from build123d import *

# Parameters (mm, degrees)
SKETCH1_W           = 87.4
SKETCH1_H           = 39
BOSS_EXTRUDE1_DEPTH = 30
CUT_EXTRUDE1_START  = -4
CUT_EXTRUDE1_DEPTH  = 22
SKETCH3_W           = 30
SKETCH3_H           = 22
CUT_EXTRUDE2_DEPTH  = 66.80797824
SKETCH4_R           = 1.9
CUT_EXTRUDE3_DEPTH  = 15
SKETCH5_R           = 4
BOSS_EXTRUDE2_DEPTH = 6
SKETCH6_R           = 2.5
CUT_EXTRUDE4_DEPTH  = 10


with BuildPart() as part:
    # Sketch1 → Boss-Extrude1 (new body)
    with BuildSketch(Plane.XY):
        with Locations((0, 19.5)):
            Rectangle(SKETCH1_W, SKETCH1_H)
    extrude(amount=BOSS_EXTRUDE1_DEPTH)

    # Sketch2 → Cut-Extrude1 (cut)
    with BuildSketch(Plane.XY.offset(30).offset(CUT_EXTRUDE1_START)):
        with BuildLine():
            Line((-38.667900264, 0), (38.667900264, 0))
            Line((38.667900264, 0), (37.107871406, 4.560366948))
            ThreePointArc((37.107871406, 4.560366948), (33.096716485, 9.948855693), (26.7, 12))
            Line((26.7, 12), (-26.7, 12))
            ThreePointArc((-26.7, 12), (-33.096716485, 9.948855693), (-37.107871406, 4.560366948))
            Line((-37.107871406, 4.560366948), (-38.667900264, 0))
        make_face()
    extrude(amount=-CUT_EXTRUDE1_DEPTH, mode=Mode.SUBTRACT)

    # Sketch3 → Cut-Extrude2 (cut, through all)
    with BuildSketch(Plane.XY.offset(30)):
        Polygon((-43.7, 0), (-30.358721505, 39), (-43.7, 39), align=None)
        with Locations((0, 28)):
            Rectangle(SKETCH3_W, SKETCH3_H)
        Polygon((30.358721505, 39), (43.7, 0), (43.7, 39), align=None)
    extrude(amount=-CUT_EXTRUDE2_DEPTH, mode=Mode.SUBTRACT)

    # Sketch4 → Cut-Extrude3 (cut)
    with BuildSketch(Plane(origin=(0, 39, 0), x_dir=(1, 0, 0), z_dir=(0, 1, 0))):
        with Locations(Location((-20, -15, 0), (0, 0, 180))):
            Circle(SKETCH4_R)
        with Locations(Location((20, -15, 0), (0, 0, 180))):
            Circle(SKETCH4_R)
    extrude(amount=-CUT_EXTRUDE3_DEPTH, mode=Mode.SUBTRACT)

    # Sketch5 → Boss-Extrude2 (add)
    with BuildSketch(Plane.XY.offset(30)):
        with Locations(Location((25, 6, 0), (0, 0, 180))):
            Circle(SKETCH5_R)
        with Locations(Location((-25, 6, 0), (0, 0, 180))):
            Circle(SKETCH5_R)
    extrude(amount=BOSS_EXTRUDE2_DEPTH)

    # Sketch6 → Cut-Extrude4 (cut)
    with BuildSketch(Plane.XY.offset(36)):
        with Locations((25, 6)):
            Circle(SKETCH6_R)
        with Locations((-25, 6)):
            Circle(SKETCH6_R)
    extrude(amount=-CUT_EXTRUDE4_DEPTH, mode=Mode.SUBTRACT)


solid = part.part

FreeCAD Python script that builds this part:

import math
import FreeCAD as App
import Part
import Sketcher
Q = App.Units.Quantity

doc = App.newDocument("Part")
body = doc.addObject("PartDesign::Body", "Body")

# Sketch on XY plane
sketch1 = body.newObject("Sketcher::SketchObject", "Sketch")
sketch1.AttachmentSupport = (doc.getObject("XY_Plane"), [""])
sketch1.MapMode = "FlatFace"
sketch1.addGeometry([
    Part.LineSegment(App.Vector(-43.7, 39, 0), App.Vector(-43.7, 0, 0)),
    Part.LineSegment(App.Vector(-43.7, 0, 0), App.Vector(43.7, 0, 0)),
    Part.LineSegment(App.Vector(43.7, 0, 0), App.Vector(43.7, 39, 0)),
    Part.LineSegment(App.Vector(43.7, 39, 0), App.Vector(-43.7, 39, 0)),
], False)
sketch1.addConstraint([
    Sketcher.Constraint("Coincident", 0, 2, 1, 1),
    Sketcher.Constraint("Coincident", 1, 2, 2, 1),
    Sketcher.Constraint("Coincident", 2, 2, 3, 1),
    Sketcher.Constraint("Coincident", 3, 2, 0, 1),
    Sketcher.Constraint("Vertical", 0),
    Sketcher.Constraint("Horizontal", 1),
    Sketcher.Constraint("Vertical", 2),
    Sketcher.Constraint("Horizontal", 3),
    Sketcher.Constraint("Symmetric", 0, 2, 1, 2, -1, 1),
    Sketcher.Constraint("DistanceY", 0, 2, 0, 1, Q("39 mm")),
    Sketcher.Constraint("DistanceX", 1, 1, 1, 2, Q("87.4 mm")),
])
pad1 = body.newObject("PartDesign::Pad", "Pad")
pad1.Profile = sketch1
pad1.Length = 30

# Sketch on XY plane
sketch2 = body.newObject("Sketcher::SketchObject", "Sketch001")
sketch2.AttachmentSupport = (doc.getObject("XY_Plane"), [""])
sketch2.MapMode = "FlatFace"
sketch2.AttachmentOffset = App.Placement(App.Vector(0, 0, 26), App.Rotation())
sketch2.addGeometry([
    Part.LineSegment(App.Vector(-38.6679, 0, 0), App.Vector(38.6679, 0, 0)),  # 0
    Part.LineSegment(App.Vector(38.6679, 0, 0), App.Vector(37.107871, 4.560367, 0)),  # 1
    Part.ArcOfCircle(Part.Circle(App.Vector(26.7, 1, 0), App.Vector(0, 0, 1), 11), math.radians(18.885), math.radians(90)),  # 2
    Part.LineSegment(App.Vector(26.7, 12, 0), App.Vector(-26.7, 12, 0)),  # 3
    Part.ArcOfCircle(Part.Circle(App.Vector(-26.7, 1, 0), App.Vector(0, 0, 1), 11), math.radians(90), math.radians(161.115)),  # 4
    Part.LineSegment(App.Vector(-37.107871, 4.560367, 0), App.Vector(-38.6679, 0, 0)),  # 5
], False)
sketch2.addConstraint([
    Sketcher.Constraint("Coincident", 0, 2, 1, 1),
    Sketcher.Constraint("Tangent", 1, 2, 2, 1),
    Sketcher.Constraint("Tangent", 2, 2, 3, 1),
    Sketcher.Constraint("Tangent", 3, 2, 4, 1),
    Sketcher.Constraint("Tangent", 4, 2, 5, 1),
    Sketcher.Constraint("Coincident", 5, 2, 0, 1),
    Sketcher.Constraint("Horizontal", 0),
    Sketcher.Constraint("Horizontal", 3),
    Sketcher.Constraint("Equal", 2, 4),
    Sketcher.Constraint("Symmetric", 0, 2, 5, 2, -1, 1),
    Sketcher.Constraint("Horizontal", 1, 2, 4, 2),
    Sketcher.Constraint("Radius", 2, Q("11 mm")),
    Sketcher.Constraint("DistanceX", 3, 2, 3, 1, Q("53.4 mm")),
    Sketcher.Constraint("DistanceY", -1, 1, 2, 3, Q("1 mm")),
    Sketcher.Constraint("DistanceX", 0, 1, 0, 2, Q("77.335801 mm")),
])
pocket1 = body.newObject("PartDesign::Pocket", "Pocket")
pocket1.Profile = sketch2
pocket1.Length = 22

# Sketch on XY plane
sketch3 = body.newObject("Sketcher::SketchObject", "Sketch002")
sketch3.AttachmentSupport = (doc.getObject("XY_Plane"), [""])
sketch3.MapMode = "FlatFace"
sketch3.AttachmentOffset = App.Placement(App.Vector(0, 0, 30), App.Rotation())
sketch3.addGeometry([
    Part.LineSegment(App.Vector(-43.7, 0, 0), App.Vector(-30.358722, 39, 0)),  # 0
    Part.LineSegment(App.Vector(-30.358722, 39, 0), App.Vector(-43.7, 39, 0)),  # 1
    Part.LineSegment(App.Vector(-43.7, 39, 0), App.Vector(-43.7, 0, 0)),  # 2
    Part.LineSegment(App.Vector(-15, 39, 0), App.Vector(-15, 17, 0)),  # 3
    Part.LineSegment(App.Vector(-15, 17, 0), App.Vector(15, 17, 0)),  # 4
    Part.LineSegment(App.Vector(15, 17, 0), App.Vector(15, 39, 0)),  # 5
    Part.LineSegment(App.Vector(15, 39, 0), App.Vector(-15, 39, 0)),  # 6
    Part.LineSegment(App.Vector(30.358722, 39, 0), App.Vector(43.7, 0, 0)),  # 7
    Part.LineSegment(App.Vector(43.7, 0, 0), App.Vector(43.7, 39, 0)),  # 8
    Part.LineSegment(App.Vector(43.7, 39, 0), App.Vector(30.358722, 39, 0)),  # 9
], False)
sketch3.addConstraint([
    Sketcher.Constraint("Coincident", 0, 2, 1, 1),
    Sketcher.Constraint("Coincident", 1, 2, 2, 1),
    Sketcher.Constraint("Coincident", 2, 2, 0, 1),
    Sketcher.Constraint("Coincident", 3, 2, 4, 1),
    Sketcher.Constraint("Coincident", 4, 2, 5, 1),
    Sketcher.Constraint("Coincident", 5, 2, 6, 1),
    Sketcher.Constraint("Coincident", 6, 2, 3, 1),
    Sketcher.Constraint("Coincident", 7, 2, 8, 1),
    Sketcher.Constraint("Coincident", 8, 2, 9, 1),
    Sketcher.Constraint("Coincident", 9, 2, 7, 1),
    Sketcher.Constraint("Horizontal", 1),
    Sketcher.Constraint("Vertical", 2),
    Sketcher.Constraint("Vertical", 3),
    Sketcher.Constraint("Horizontal", 4),
    Sketcher.Constraint("Vertical", 5),
    Sketcher.Constraint("Horizontal", 6),
    Sketcher.Constraint("Vertical", 8),
    Sketcher.Constraint("Horizontal", 9),
    Sketcher.Constraint("Symmetric", 2, 2, 7, 2, -1, 1),
    Sketcher.Constraint("Symmetric", 0, 2, 9, 2, -2),
    Sketcher.Constraint("PointOnObject", 2, 2, -1),
    Sketcher.Constraint("Horizontal", 1, 2, 5, 2),
    Sketcher.Constraint("DistanceX", 4, 1, 4, 2, Q("30 mm")),
    Sketcher.Constraint("DistanceY", 2, 2, 2, 1, Q("39 mm")),
    Sketcher.Constraint("DistanceY", 3, 2, 3, 1, Q("22 mm")),
    Sketcher.Constraint("DistanceX", 3, 2, -1, 1, Q("15 mm")),
    Sketcher.Constraint("DistanceX", 1, 2, -1, 1, Q("43.7 mm")),
    Sketcher.Constraint("DistanceX", 1, 2, 1, 1, Q("13.341278 mm")),
])
pocket2 = body.newObject("PartDesign::Pocket", "Pocket001")
pocket2.Profile = sketch3
pocket2.Type = "ThroughAll"

# Sketch on XZ plane
sketch4 = body.newObject("Sketcher::SketchObject", "Sketch003")
sketch4.AttachmentSupport = (doc.getObject("XZ_Plane"), [""])
sketch4.MapMode = "FlatFace"
sketch4.AttachmentOffset = App.Placement(App.Vector(0, 0, -39), App.Rotation())
sketch4.addGeometry([
    Part.Circle(App.Vector(-20, 15, 0), App.Vector(0, 0, 1), 1.9),
    Part.Circle(App.Vector(20, 15, 0), App.Vector(0, 0, 1), 1.9),
], False)
sketch4.addConstraint([
    Sketcher.Constraint("Equal", 0, 1),
    Sketcher.Constraint("Symmetric", 0, 3, 1, 3, -2),
    Sketcher.Constraint("Diameter", 0, Q("3.8 mm")),
    Sketcher.Constraint("DistanceX", 0, 3, -1, 1, Q("20 mm")),
    Sketcher.Constraint("DistanceY", -1, 1, 0, 3, Q("15 mm")),
])
pocket3 = body.newObject("PartDesign::Pocket", "Pocket002")
pocket3.Profile = sketch4
pocket3.Length = 15
pocket3.Reversed = True

# Sketch on XY plane
sketch5 = body.newObject("Sketcher::SketchObject", "Sketch004")
sketch5.AttachmentSupport = (doc.getObject("XY_Plane"), [""])
sketch5.MapMode = "FlatFace"
sketch5.AttachmentOffset = App.Placement(App.Vector(0, 0, 30), App.Rotation())
sketch5.addGeometry([
    Part.Circle(App.Vector(25, 6, 0), App.Vector(0, 0, 1), 4),
    Part.Circle(App.Vector(-25, 6, 0), App.Vector(0, 0, 1), 4),
], False)
sketch5.addConstraint([
    Sketcher.Constraint("Equal", 0, 1),
    Sketcher.Constraint("Symmetric", 0, 3, 1, 3, -2),
    Sketcher.Constraint("Diameter", 0, Q("8 mm")),
    Sketcher.Constraint("DistanceX", -1, 1, 0, 3, Q("25 mm")),
    Sketcher.Constraint("DistanceY", -1, 1, 0, 3, Q("6 mm")),
])
pad2 = body.newObject("PartDesign::Pad", "Pad001")
pad2.Profile = sketch5
pad2.Length = 6

# Sketch on XY plane
sketch6 = body.newObject("Sketcher::SketchObject", "Sketch005")
sketch6.AttachmentSupport = (doc.getObject("XY_Plane"), [""])
sketch6.MapMode = "FlatFace"
sketch6.AttachmentOffset = App.Placement(App.Vector(0, 0, 36), App.Rotation())
sketch6.addGeometry([
    Part.Circle(App.Vector(25, 6, 0), App.Vector(0, 0, 1), 2.5),
    Part.Circle(App.Vector(-25, 6, 0), App.Vector(0, 0, 1), 2.5),
], False)
sketch6.addConstraint([
    Sketcher.Constraint("Equal", 0, 1),
    Sketcher.Constraint("Symmetric", 0, 3, 1, 3, -2),
    Sketcher.Constraint("Diameter", 0, Q("5 mm")),
    Sketcher.Constraint("DistanceX", -1, 1, 0, 3, Q("25 mm")),
    Sketcher.Constraint("DistanceY", -1, 1, 0, 3, Q("6 mm")),
])
pocket4 = body.newObject("PartDesign::Pocket", "Pocket003")
pocket4.Profile = sketch6
pocket4.Length = 10

doc.recompute()
